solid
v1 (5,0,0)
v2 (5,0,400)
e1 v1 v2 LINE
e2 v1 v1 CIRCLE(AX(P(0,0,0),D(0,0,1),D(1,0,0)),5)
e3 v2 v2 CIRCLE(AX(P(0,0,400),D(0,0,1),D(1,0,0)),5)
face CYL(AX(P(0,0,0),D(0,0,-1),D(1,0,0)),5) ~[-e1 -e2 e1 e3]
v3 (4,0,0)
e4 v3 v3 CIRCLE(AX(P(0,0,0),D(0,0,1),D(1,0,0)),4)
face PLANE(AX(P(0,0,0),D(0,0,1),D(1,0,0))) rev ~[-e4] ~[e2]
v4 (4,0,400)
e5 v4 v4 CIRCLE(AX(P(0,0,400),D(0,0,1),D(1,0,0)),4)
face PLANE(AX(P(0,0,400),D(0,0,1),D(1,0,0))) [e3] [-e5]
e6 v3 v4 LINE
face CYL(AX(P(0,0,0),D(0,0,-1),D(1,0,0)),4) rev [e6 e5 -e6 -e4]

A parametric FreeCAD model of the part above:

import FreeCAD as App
import Part
import Sketcher

doc = App.newDocument("Part")
params = doc.addObject("Spreadsheet::Sheet", "Params")
for row, (alias, value) in enumerate([
    ("sketch1_diameter", "10 mm"),
    ("sketch1_diameter2", "8 mm"),
    ("pad1_length", "400 mm"),
], start=1):
    params.set(f"A{row}", alias)
    params.set(f"B{row}", "=" + value)
    params.setAlias(f"B{row}", alias)

body = doc.addObject("PartDesign::Body", "Body")

# Sketch on XY plane
sketch1 = body.newObject("Sketcher::SketchObject", "Sketch")
sketch1.AttachmentSupport = (doc.getObject("XY_Plane"), [""])
sketch1.MapMode = "FlatFace"
sketch1.addGeometry([
    Part.Circle(App.Vector(0, 0, 0), App.Vector(0, 0, 1), 5),
    Part.Circle(App.Vector(0, 0, 0), App.Vector(0, 0, 1), 4),
], False)
sketch1.addConstraint([
    Sketcher.Constraint("Coincident", 0, 3, -1, 1),
    Sketcher.Constraint("Coincident", 1, 3, -1, 1),
    Sketcher.Constraint("Diameter", 0, 10.0),
    Sketcher.Constraint("Diameter", 1, 8.0),
])
sketch1.setExpression("Constraints[2]", "Params.sketch1_diameter")
sketch1.setExpression("Constraints[3]", "Params.sketch1_diameter2")
pad1 = body.newObject("PartDesign::Pad", "Pad")
pad1.Profile = sketch1
pad1.setExpression("Length", "Params.pad1_length")

doc.recompute()
